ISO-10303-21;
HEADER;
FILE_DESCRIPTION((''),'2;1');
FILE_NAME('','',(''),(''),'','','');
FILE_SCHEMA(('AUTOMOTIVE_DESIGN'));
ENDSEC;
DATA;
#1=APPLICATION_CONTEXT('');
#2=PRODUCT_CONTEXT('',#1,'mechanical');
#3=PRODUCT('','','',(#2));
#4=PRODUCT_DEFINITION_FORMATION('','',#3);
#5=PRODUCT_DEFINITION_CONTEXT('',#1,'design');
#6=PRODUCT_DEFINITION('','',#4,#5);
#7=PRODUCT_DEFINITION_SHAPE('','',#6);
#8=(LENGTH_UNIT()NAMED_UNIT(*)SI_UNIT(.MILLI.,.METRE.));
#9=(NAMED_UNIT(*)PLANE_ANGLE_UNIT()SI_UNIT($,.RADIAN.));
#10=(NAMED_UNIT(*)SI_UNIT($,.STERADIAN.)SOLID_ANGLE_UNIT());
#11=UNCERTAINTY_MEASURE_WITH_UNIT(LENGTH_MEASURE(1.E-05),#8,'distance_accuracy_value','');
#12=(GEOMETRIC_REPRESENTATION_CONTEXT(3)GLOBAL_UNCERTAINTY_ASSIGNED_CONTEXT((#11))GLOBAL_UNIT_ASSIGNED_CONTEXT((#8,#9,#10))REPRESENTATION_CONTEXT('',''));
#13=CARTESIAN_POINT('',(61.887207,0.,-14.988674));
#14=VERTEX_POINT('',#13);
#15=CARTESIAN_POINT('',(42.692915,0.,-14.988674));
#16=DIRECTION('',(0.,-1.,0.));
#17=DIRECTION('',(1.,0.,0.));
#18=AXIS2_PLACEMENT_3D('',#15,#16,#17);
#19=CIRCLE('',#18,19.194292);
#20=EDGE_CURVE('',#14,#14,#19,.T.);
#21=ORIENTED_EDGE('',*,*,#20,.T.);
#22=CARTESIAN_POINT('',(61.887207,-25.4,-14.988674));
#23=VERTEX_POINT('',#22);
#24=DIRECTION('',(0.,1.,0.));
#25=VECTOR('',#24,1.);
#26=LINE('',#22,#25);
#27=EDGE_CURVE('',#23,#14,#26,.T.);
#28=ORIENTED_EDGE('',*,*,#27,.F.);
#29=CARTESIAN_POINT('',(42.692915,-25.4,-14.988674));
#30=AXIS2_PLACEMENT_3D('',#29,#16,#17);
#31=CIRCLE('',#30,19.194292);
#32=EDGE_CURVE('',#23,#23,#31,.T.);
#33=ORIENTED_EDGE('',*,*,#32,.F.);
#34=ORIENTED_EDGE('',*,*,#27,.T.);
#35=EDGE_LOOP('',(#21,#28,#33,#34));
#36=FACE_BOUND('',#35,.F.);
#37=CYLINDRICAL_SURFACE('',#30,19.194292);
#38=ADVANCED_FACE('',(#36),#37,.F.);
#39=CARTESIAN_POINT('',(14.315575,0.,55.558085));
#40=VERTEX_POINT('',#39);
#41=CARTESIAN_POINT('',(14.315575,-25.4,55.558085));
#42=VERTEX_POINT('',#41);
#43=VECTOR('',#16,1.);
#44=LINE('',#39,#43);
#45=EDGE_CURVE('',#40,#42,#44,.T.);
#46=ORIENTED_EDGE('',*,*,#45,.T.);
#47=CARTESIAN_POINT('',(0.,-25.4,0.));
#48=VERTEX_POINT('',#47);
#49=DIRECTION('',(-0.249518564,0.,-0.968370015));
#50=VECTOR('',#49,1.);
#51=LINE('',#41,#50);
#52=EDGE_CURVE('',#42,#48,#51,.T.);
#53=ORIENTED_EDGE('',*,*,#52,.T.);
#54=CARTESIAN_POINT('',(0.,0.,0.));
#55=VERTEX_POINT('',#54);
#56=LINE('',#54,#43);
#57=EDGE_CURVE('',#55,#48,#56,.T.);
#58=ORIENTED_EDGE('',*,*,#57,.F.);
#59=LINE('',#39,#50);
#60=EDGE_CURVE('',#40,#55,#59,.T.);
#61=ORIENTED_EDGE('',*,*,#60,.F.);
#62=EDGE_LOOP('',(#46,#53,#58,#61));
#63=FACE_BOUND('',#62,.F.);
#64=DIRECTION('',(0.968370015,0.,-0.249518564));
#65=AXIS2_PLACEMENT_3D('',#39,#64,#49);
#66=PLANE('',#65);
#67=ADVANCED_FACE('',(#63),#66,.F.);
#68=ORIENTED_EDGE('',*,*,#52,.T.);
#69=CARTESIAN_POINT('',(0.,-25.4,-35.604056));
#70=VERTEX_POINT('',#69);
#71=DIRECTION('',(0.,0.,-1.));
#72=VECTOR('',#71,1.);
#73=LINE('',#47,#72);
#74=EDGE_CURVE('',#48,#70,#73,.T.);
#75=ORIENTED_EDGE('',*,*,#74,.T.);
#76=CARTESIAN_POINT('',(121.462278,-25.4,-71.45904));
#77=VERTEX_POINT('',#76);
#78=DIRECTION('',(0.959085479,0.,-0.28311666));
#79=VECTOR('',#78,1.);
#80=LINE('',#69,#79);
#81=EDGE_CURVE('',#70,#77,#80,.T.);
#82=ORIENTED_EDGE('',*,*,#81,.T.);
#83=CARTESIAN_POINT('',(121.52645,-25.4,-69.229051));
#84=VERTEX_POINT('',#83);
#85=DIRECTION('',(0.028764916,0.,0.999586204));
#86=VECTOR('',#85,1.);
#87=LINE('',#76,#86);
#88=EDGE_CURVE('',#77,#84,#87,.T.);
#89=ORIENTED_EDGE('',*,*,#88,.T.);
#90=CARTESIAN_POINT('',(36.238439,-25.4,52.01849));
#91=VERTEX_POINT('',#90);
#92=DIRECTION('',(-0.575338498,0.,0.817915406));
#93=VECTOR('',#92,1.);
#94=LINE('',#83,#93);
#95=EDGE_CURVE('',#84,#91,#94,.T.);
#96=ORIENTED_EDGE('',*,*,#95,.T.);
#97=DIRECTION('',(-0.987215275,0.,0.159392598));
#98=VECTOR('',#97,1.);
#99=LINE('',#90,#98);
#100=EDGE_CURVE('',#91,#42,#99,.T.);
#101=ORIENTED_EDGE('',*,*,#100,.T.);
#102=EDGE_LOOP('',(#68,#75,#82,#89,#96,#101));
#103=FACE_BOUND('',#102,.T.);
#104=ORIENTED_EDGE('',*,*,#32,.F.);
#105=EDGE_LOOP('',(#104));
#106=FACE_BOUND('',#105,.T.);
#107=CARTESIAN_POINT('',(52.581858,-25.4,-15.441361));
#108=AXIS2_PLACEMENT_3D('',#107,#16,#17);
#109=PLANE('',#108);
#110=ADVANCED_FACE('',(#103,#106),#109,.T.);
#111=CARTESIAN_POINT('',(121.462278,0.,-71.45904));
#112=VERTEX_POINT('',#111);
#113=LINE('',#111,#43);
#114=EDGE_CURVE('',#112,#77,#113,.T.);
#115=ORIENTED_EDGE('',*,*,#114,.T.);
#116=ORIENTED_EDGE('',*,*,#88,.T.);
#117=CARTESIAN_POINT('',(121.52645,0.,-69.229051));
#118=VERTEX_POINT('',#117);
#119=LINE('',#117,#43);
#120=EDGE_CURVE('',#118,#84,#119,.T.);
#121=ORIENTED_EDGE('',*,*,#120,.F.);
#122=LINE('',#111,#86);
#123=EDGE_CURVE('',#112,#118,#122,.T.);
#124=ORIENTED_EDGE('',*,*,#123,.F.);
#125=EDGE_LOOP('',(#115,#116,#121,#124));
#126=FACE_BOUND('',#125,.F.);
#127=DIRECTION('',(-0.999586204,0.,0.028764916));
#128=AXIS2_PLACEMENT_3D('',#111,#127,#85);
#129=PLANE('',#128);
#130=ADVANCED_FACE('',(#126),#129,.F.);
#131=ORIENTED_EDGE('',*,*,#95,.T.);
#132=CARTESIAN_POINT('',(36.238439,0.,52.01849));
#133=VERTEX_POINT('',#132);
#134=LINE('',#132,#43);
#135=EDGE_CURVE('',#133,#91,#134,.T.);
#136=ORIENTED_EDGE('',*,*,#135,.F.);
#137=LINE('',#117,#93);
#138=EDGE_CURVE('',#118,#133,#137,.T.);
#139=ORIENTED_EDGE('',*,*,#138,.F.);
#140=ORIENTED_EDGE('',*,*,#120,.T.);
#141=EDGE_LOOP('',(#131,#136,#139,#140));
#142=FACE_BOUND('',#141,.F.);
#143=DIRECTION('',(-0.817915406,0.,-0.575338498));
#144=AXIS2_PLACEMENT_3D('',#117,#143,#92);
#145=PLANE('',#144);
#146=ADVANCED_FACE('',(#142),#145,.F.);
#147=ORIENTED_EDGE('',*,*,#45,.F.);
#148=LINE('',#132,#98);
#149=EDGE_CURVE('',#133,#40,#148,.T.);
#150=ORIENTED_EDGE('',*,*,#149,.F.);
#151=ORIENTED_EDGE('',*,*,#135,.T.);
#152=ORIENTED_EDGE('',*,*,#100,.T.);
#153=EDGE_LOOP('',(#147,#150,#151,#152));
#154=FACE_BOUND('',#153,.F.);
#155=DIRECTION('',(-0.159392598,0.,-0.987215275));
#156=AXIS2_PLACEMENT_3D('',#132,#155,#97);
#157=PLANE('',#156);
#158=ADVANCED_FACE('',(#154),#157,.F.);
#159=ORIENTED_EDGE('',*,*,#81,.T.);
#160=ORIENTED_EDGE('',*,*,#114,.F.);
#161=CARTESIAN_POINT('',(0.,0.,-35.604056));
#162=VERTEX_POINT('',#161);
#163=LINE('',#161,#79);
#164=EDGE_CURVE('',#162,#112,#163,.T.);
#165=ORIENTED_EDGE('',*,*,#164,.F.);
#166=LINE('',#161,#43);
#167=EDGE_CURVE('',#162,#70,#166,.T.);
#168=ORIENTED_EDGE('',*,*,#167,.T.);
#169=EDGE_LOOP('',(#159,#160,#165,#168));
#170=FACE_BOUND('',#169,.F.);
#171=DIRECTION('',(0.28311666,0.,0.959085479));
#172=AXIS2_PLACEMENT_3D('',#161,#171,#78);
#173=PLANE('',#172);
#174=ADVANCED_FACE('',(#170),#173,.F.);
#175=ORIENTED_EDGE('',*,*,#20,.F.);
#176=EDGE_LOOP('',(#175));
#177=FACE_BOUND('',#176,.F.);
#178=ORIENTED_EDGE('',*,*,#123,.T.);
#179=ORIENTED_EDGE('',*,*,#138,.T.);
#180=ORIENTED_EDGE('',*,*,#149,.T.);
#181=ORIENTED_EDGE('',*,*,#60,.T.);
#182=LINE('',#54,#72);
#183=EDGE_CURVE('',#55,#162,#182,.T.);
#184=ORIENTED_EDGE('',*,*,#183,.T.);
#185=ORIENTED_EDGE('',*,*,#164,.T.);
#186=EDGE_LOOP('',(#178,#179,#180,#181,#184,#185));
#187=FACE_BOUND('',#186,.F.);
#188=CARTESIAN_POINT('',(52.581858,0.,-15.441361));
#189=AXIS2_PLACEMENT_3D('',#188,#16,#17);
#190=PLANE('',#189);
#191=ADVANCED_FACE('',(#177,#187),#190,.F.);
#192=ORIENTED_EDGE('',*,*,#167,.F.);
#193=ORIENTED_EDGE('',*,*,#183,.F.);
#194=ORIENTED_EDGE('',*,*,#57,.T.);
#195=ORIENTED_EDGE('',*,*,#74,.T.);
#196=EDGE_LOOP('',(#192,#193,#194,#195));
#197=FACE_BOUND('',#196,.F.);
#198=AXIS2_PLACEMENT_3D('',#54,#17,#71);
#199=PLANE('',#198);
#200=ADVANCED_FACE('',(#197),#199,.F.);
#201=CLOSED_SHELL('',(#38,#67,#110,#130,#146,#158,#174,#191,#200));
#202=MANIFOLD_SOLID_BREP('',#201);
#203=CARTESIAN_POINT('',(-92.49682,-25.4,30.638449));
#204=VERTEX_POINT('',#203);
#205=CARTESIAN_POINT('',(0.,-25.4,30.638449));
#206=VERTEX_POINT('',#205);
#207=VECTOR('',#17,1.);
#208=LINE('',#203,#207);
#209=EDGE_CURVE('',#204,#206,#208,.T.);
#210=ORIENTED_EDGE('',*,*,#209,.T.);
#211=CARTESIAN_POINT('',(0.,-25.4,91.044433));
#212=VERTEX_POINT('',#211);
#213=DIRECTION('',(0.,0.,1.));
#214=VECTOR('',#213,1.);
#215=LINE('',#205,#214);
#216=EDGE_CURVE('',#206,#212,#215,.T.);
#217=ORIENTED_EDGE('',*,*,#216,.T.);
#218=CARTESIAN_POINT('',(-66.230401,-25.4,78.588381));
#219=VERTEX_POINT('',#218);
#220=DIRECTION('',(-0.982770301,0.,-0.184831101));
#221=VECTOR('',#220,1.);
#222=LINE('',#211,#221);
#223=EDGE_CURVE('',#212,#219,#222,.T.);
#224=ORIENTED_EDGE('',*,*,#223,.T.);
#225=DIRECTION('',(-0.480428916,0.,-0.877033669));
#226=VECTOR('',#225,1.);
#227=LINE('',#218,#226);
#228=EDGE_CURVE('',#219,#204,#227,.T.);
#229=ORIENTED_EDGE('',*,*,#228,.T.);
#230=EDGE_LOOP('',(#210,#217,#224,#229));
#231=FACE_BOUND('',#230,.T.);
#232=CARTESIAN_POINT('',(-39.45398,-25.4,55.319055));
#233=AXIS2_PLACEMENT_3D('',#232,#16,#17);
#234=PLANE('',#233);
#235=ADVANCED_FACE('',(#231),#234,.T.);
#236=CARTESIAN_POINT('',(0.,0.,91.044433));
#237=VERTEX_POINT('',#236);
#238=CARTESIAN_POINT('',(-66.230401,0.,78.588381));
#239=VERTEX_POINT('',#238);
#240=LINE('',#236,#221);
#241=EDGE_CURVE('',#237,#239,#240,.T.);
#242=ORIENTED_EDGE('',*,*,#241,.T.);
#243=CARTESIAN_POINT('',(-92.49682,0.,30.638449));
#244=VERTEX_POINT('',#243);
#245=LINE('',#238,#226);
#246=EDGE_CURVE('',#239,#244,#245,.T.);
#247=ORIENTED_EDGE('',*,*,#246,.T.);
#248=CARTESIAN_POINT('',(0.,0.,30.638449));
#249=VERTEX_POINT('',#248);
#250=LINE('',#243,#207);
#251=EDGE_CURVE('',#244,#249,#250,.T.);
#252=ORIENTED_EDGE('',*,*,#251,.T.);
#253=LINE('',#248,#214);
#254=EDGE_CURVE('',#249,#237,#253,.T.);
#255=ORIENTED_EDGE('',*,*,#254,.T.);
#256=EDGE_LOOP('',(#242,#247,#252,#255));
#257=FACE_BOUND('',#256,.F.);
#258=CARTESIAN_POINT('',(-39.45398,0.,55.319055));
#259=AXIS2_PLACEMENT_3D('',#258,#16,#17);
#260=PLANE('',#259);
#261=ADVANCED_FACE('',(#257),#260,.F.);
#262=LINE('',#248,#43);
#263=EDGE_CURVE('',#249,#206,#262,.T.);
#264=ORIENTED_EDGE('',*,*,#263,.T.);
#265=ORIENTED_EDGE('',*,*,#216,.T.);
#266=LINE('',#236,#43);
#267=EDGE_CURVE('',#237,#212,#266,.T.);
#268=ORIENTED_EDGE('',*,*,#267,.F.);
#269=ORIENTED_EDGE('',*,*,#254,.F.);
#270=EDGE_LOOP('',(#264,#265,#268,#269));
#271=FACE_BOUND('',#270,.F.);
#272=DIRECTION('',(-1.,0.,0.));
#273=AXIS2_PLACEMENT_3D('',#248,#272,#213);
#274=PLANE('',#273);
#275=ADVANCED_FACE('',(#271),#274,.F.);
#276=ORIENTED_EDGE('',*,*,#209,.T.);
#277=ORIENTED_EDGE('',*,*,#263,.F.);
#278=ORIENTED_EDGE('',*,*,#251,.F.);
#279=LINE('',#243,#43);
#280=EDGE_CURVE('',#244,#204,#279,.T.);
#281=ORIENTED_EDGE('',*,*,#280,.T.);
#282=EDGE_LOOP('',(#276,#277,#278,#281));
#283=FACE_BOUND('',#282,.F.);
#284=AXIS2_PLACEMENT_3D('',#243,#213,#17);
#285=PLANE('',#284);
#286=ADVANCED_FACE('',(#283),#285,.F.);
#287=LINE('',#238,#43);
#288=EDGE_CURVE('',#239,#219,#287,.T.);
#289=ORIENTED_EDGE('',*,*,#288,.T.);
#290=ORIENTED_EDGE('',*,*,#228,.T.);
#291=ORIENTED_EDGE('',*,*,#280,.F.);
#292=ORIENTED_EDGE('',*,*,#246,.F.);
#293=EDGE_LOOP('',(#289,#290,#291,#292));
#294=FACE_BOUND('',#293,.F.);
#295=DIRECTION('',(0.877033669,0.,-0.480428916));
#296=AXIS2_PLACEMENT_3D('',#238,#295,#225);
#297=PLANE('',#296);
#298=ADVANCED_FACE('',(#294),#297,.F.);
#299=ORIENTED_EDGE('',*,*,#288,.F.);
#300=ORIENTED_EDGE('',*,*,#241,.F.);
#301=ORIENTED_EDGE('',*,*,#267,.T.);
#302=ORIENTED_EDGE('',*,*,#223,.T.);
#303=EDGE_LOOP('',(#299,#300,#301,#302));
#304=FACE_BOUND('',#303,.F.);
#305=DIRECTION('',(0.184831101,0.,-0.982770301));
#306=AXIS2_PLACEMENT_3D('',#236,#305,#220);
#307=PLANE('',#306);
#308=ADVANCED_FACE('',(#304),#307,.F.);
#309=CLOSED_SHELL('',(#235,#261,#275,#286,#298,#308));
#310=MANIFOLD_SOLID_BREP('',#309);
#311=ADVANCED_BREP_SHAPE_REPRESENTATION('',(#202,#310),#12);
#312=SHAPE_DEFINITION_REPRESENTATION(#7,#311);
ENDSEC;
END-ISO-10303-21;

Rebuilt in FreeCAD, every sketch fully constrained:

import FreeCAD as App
import Part
import Sketcher
from FreeCAD import Vector
Q = App.Units.Quantity

doc = App.newDocument("Part")
body = doc.addObject("PartDesign::Body", "Body")

sketch1 = body.newObject("Sketcher::SketchObject", "Sketch")
sketch1.AttachmentSupport = (doc.getObject("XZ_Plane"), [""])
sketch1.MapMode = "FlatFace"
sketch1.addGeometry([
    Part.LineSegment(Vector(14.3, 55.6, 0), Vector(0, 0, 0)),
    Part.LineSegment(Vector(0, 0, 0), Vector(0, -35.6, 0)),
    Part.LineSegment(Vector(0, -35.6, 0), Vector(121.5, -71.5, 0)),
    Part.LineSegment(Vector(121.5, -71.5, 0), Vector(121.5, -69.2, 0)),
    Part.LineSegment(Vector(121.5, -69.2, 0), Vector(36.2, 52, 0)),
    Part.LineSegment(Vector(36.2, 52, 0), Vector(14.3, 55.6, 0)),
], False)
sketch1.addConstraint([
    Sketcher.Constraint("Coincident", 0, 2, 1, 1),
    Sketcher.Constraint("Coincident", 1, 2, 2, 1),
    Sketcher.Constraint("Coincident", 2, 2, 3, 1),
    Sketcher.Constraint("Coincident", 3, 2, 4, 1),
    Sketcher.Constraint("Coincident", 4, 2, 5, 1),
    Sketcher.Constraint("Coincident", 5, 2, 0, 1),
    Sketcher.Constraint("Vertical", 1),
    Sketcher.Constraint("Coincident", 0, 2, -1, 1),
    Sketcher.Constraint("Distance", 2, 126.64385),
    Sketcher.Constraint("Distance", 5, 22.206771),
    Sketcher.Constraint("DistanceY", 1, 2, 1, 1, 35.604056),
    Sketcher.Constraint("DistanceY", 2, 2, -1, 1, 71.45904),
    Sketcher.Constraint("DistanceX", -1, 1, 3, 2, 121.52645),
    Sketcher.Constraint("DistanceY", 3, 2, -1, 1, 69.229051),
    Sketcher.Constraint("DistanceX", -1, 1, 4, 2, 36.238439),
    Sketcher.Constraint("DistanceY", -1, 1, 4, 2, 52.01849),
    Sketcher.Constraint("DistanceY", 1, 2, 5, 2, 91.162141),
])
pad1 = body.newObject("PartDesign::Pad", "Pad")
pad1.Profile = sketch1
pad1.Length = Q("1 in")

sketch2 = body.newObject("Sketcher::SketchObject", "Sketch001")
sketch2.AttachmentSupport = (doc.getObject("XZ_Plane"), [""])
sketch2.MapMode = "FlatFace"
sketch2.AttachmentOffset = App.Placement(Vector(0, 0, 1 * 25.4), App.Rotation())
sketch2.addGeometry(Part.Circle(Vector(43, -15, 0), Vector(0, 0, 1), 19), False)
sketch2.addConstraint([
    Sketcher.Constraint("Diameter", 0, 38.388584),
    Sketcher.Constraint("DistanceX", -1, 1, 0, 3, 42.692915),
    Sketcher.Constraint("DistanceY", 0, 3, -1, 1, 14.988674),
])
pocket1 = body.newObject("PartDesign::Pocket", "Pocket")
pocket1.Profile = sketch2
pocket1.Length = Q("1 in")
body2 = doc.addObject("PartDesign::Body", "Body001")

sketch3 = body2.newObject("Sketcher::SketchObject", "Sketch002")
sketch3.AttachmentSupport = (doc.getObject("XZ_Plane001"), [""])
sketch3.MapMode = "FlatFace"
sketch3.addGeometry([
    Part.LineSegment(Vector(-66, 79, 0), Vector(-92, 31, 0)),
    Part.LineSegment(Vector(-92, 31, 0), Vector(0, 31, 0)),
    Part.LineSegment(Vector(0, 31, 0), Vector(0, 91, 0)),
    Part.LineSegment(Vector(0, 91, 0), Vector(-66, 79, 0)),
], False)
sketch3.addConstraint([
    Sketcher.Constraint("Coincident", 0, 2, 1, 1),
    Sketcher.Constraint("Coincident", 1, 2, 2, 1),
    Sketcher.Constraint("Coincident", 2, 2, 3, 1),
    Sketcher.Constraint("Coincident", 3, 2, 0, 1),
    Sketcher.Constraint("Horizontal", 1),
    Sketcher.Constraint("Vertical", 2),
    Sketcher.Constraint("PointOnObject", 1, 2, -2),
    Sketcher.Constraint("DistanceX", 1, 1, 1, 2, 92.49682),
    Sketcher.Constraint("DistanceX", 3, 2, -1, 1, 66.230401),
    Sketcher.Constraint("DistanceY", 2, 1, 2, 2, 60.405984),
    Sketcher.Constraint("DistanceY", -1, 1, 0, 2, 30.638449),
    Sketcher.Constraint("DistanceY", -1, 1, 3, 2, 78.588381),
])
pad2 = body2.newObject("PartDesign::Pad", "Pad001")
pad2.Profile = sketch3
pad2.Length = Q("1 in")

doc.recompute()
